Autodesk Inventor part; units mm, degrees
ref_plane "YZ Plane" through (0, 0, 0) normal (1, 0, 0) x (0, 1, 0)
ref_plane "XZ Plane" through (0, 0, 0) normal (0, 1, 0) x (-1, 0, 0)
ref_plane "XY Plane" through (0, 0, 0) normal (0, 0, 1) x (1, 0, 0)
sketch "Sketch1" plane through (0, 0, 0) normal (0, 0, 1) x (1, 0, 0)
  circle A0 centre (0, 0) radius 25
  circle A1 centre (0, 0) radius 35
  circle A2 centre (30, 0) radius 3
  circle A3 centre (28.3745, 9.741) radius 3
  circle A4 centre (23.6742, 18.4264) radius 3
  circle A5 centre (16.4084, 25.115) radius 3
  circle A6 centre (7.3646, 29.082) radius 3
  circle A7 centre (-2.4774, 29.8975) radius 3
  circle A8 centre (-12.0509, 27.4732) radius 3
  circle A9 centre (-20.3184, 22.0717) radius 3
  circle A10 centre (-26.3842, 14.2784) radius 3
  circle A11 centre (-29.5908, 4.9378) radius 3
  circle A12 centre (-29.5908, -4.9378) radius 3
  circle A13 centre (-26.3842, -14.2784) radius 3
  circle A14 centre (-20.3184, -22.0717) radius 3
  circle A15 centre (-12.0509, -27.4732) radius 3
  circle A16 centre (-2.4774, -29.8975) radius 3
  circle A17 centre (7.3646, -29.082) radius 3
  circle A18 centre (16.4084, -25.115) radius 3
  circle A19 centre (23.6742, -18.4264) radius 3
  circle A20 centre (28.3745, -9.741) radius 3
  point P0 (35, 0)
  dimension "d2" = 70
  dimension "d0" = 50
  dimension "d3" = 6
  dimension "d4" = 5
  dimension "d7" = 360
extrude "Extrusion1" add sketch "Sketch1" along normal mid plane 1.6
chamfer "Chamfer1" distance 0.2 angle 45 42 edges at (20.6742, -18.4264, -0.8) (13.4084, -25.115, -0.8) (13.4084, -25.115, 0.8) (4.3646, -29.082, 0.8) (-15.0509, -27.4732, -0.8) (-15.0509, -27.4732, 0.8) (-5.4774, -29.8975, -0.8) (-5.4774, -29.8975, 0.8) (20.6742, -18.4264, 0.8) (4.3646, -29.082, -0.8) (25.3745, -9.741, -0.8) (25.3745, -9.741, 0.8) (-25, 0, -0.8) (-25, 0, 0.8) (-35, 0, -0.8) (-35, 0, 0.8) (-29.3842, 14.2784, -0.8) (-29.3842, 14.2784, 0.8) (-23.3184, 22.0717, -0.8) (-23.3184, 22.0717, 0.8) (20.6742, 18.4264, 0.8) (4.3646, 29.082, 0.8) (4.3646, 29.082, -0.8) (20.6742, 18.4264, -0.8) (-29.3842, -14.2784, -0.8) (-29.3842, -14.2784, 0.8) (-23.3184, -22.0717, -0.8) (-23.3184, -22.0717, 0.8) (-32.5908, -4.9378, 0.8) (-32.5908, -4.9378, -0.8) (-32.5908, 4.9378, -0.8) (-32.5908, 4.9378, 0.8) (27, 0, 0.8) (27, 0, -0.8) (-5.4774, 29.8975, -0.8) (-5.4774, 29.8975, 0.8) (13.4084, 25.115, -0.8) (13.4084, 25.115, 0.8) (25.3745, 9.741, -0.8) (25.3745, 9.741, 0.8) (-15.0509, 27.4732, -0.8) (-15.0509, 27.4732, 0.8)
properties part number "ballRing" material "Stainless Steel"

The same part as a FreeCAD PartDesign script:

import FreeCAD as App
import Part
import Sketcher
from FreeCAD import Vector


def edges_at(feature, points):
    """Names of the edges that pass closest to the given points."""
    edges = feature.Shape.Edges
    near = lambda p: min(range(len(edges)), key=lambda i: edges[i].distToShape(Part.Vertex(*p))[0])
    return sorted({f"Edge{near(p) + 1}" for p in points})

doc = App.newDocument("Part")
body = doc.addObject("PartDesign::Body", "Body")

# Sketch on XY plane
sketch1 = body.newObject("Sketcher::SketchObject", "Sketch")
sketch1.AttachmentSupport = (doc.getObject("XY_Plane"), [""])
sketch1.MapMode = "FlatFace"
sketch1.addGeometry(Part.Circle(Vector(0, 0, 0), Vector(0, 0, 1), 35), False)
sketch1.addGeometry(Part.Circle(Vector(-20.3, -22.1, 0), Vector(0, 0, 1), 3), False)
sketch1.addGeometry(Part.Circle(Vector(-12.1, -27.5, 0), Vector(0, 0, 1), 3), False)
sketch1.addGeometry(Part.Circle(Vector(-2.5, -29.9, 0), Vector(0, 0, 1), 3), False)
sketch1.addGeometry(Part.Circle(Vector(-26.4, -14.3, 0), Vector(0, 0, 1), 3), False)
sketch1.addGeometry(Part.Circle(Vector(-29.6, -4.9, 0), Vector(0, 0, 1), 3), False)
sketch1.addGeometry(Part.Circle(Vector(7.4, -29.1, 0), Vector(0, 0, 1), 3), False)
sketch1.addGeometry(Part.Circle(Vector(16.4, -25.1, 0), Vector(0, 0, 1), 3), False)
sketch1.addGeometry(Part.Circle(Vector(23.7, -18.4, 0), Vector(0, 0, 1), 3), False)
sketch1.addGeometry(Part.Circle(Vector(28.4, -9.7, 0), Vector(0, 0, 1), 3), False)
sketch1.addGeometry(Part.Circle(Vector(-29.6, 4.9, 0), Vector(0, 0, 1), 3), False)
sketch1.addGeometry(Part.Circle(Vector(-26.4, 14.3, 0), Vector(0, 0, 1), 3), False)
sketch1.addGeometry(Part.Circle(Vector(-20.3, 22.1, 0), Vector(0, 0, 1), 3), False)
sketch1.addGeometry(Part.Circle(Vector(-12.1, 27.5, 0), Vector(0, 0, 1), 3), False)
sketch1.addGeometry(Part.Circle(Vector(-2.5, 29.9, 0), Vector(0, 0, 1), 3), False)
sketch1.addGeometry(Part.Circle(Vector(0, 0, 0), Vector(0, 0, 1), 25), False)
sketch1.addGeometry(Part.Circle(Vector(30, 0, 0), Vector(0, 0, 1), 3), False)
sketch1.addGeometry(Part.Circle(Vector(28.4, 9.7, 0), Vector(0, 0, 1), 3), False)
sketch1.addGeometry(Part.Circle(Vector(16.4, 25.1, 0), Vector(0, 0, 1), 3), False)
sketch1.addGeometry(Part.Circle(Vector(7.4, 29.1, 0), Vector(0, 0, 1), 3), False)
sketch1.addGeometry(Part.Circle(Vector(23.7, 18.4, 0), Vector(0, 0, 1), 3), False)
sketch1.addConstraint(Sketcher.Constraint("Coincident", 0, 3, -1, 1))
sketch1.addConstraint(Sketcher.Constraint("Coincident", 15, 3, -1, 1))
sketch1.addConstraint(Sketcher.Constraint("Equal", 1, 2))
sketch1.addConstraint(Sketcher.Constraint("Equal", 2, 3))
sketch1.addConstraint(Sketcher.Constraint("Equal", 3, 4))
sketch1.addConstraint(Sketcher.Constraint("Equal", 4, 5))
sketch1.addConstraint(Sketcher.Constraint("Equal", 5, 6))
sketch1.addConstraint(Sketcher.Constraint("Equal", 6, 7))
sketch1.addConstraint(Sketcher.Constraint("Equal", 7, 8))
sketch1.addConstraint(Sketcher.Constraint("Equal", 8, 9))
sketch1.addConstraint(Sketcher.Constraint("Equal", 9, 10))
sketch1.addConstraint(Sketcher.Constraint("Equal", 10, 11))
sketch1.addConstraint(Sketcher.Constraint("Equal", 11, 12))
sketch1.addConstraint(Sketcher.Constraint("Equal", 12, 13))
sketch1.addConstraint(Sketcher.Constraint("Equal", 13, 14))
sketch1.addConstraint(Sketcher.Constraint("Equal", 14, 16))
sketch1.addConstraint(Sketcher.Constraint("Equal", 16, 17))
sketch1.addConstraint(Sketcher.Constraint("Equal", 17, 18))
sketch1.addConstraint(Sketcher.Constraint("Equal", 18, 19))
sketch1.addConstraint(Sketcher.Constraint("Equal", 19, 20))
sketch1.addConstraint(Sketcher.Constraint("Symmetric", 5, 3, 10, 3, -1))
sketch1.addConstraint(Sketcher.Constraint("Symmetric", 4, 3, 11, 3, -1))
sketch1.addConstraint(Sketcher.Constraint("Symmetric", 1, 3, 12, 3, -1))
sketch1.addConstraint(Sketcher.Constraint("Symmetric", 2, 3, 13, 3, -1))
sketch1.addConstraint(Sketcher.Constraint("Symmetric", 3, 3, 14, 3, -1))
sketch1.addConstraint(Sketcher.Constraint("Symmetric", 9, 3, 17, 3, -1))
sketch1.addConstraint(Sketcher.Constraint("Symmetric", 7, 3, 18, 3, -1))
sketch1.addConstraint(Sketcher.Constraint("Symmetric", 6, 3, 19, 3, -1))
sketch1.addConstraint(Sketcher.Constraint("Symmetric", 8, 3, 20, 3, -1))
sketch1.addConstraint(Sketcher.Constraint("PointOnObject", 16, 3, -1))
sketch1.addConstraint(Sketcher.Constraint("Diameter", 0, 70.0))
sketch1.addConstraint(Sketcher.Constraint("Diameter", 1, 6.0))
sketch1.addConstraint(Sketcher.Constraint("Diameter", 15, 50.0))
sketch1.addConstraint(Sketcher.Constraint("DistanceX", -1, 1, 16, 3, 30.0))
sketch1.addConstraint(Sketcher.Constraint("DistanceX", 5, 3, 2, 3, 17.54))
sketch1.addConstraint(Sketcher.Constraint("DistanceX", 6, 3, 9, 3, 21.01))
sketch1.addConstraint(Sketcher.Constraint("DistanceY", 1, 3, 11, 3, 36.35))
sketch1.addConstraint(Sketcher.Constraint("DistanceX", 2, 3, -1, 1, 12.051))
sketch1.addConstraint(Sketcher.Constraint("DistanceY", 6, 3, -1, 1, 29.082))
sketch1.addConstraint(Sketcher.Constraint("DistanceY", 7, 3, -1, 1, 25.115))
sketch1.addConstraint(Sketcher.Constraint("DistanceY", 9, 3, -1, 1, 9.741))
sketch1.addConstraint(Sketcher.Constraint("DistanceX", 1, 3, 3, 3, 17.841))
sketch1.addConstraint(Sketcher.Constraint("DistanceY", 3, 3, 4, 3, 15.619))
sketch1.addConstraint(Sketcher.Constraint("DistanceY", 1, 3, 5, 3, 17.134))
sketch1.addConstraint(Sketcher.Constraint("DistanceX", 3, 3, 6, 3, 9.842))
sketch1.addConstraint(Sketcher.Constraint("DistanceY", 3, 3, 8, 3, 11.471))
sketch1.addConstraint(Sketcher.Constraint("DistanceX", 2, 3, 8, 3, 35.725))
sketch1.addConstraint(Sketcher.Constraint("DistanceX", 7, 3, 9, 3, 11.966))
sketch1.addConstraint(Sketcher.Constraint("DistanceY", 2, 3, 10, 3, 32.411))
sketch1.addConstraint(Sketcher.Constraint("DistanceX", 1, 3, -1, 1, 20.3184))
sketch1.addConstraint(Sketcher.Constraint("DistanceY", 1, 3, -1, 1, 22.0717))
sketch1.addConstraint(Sketcher.Constraint("DistanceX", 4, 3, -1, 1, 26.3842))
pad1 = body.newObject("PartDesign::Pad", "Pad")
pad1.Profile = sketch1
pad1.Length = 1.6
pad1.Midplane = True
doc.recompute()

chamfer = body.newObject("PartDesign::Chamfer", "Chamfer")
chamfer.Base = (pad1, edges_at(pad1, [
    (20.674, -18.426, -0.8),
    (13.408, -25.115, -0.8),
    (13.408, -25.115, 0.8),
    (4.365, -29.082, 0.8),
    (-15.051, -27.473, -0.8),
    (-15.051, -27.473, 0.8),
    (-5.477, -29.898, -0.8),
    (-5.477, -29.898, 0.8),
    (20.674, -18.426, 0.8),
    (4.365, -29.082, -0.8),
    (25.375, -9.741, -0.8),
    (25.375, -9.741, 0.8),
    (-25, 0, -0.8),
    (-25, 0, 0.8),
    (-35, 0, -0.8),
    (-35, 0, 0.8),
    (-29.384, 14.278, -0.8),
    (-29.384, 14.278, 0.8),
    (-23.318, 22.072, -0.8),
    (-23.318, 22.072, 0.8),
    (20.674, 18.426, 0.8),
    (4.365, 29.082, 0.8),
    (4.365, 29.082, -0.8),
    (20.674, 18.426, -0.8),
    (-29.384, -14.278, -0.8),
    (-29.384, -14.278, 0.8),
    (-23.318, -22.072, -0.8),
    (-23.318, -22.072, 0.8),
    (-32.591, -4.938, 0.8),
    (-32.591, -4.938, -0.8),
    (-32.591, 4.938, -0.8),
    (-32.591, 4.938, 0.8),
    (27, 0, 0.8),
    (27, 0, -0.8),
    (-5.477, 29.898, -0.8),
    (-5.477, 29.898, 0.8),
    (13.408, 25.115, -0.8),
    (13.408, 25.115, 0.8),
    (25.375, 9.741, -0.8),
    (25.375, 9.741, 0.8),
    (-15.051, 27.473, -0.8),
    (-15.051, 27.473, 0.8),
]))
chamfer.Size = 0.2

doc.recompute()
